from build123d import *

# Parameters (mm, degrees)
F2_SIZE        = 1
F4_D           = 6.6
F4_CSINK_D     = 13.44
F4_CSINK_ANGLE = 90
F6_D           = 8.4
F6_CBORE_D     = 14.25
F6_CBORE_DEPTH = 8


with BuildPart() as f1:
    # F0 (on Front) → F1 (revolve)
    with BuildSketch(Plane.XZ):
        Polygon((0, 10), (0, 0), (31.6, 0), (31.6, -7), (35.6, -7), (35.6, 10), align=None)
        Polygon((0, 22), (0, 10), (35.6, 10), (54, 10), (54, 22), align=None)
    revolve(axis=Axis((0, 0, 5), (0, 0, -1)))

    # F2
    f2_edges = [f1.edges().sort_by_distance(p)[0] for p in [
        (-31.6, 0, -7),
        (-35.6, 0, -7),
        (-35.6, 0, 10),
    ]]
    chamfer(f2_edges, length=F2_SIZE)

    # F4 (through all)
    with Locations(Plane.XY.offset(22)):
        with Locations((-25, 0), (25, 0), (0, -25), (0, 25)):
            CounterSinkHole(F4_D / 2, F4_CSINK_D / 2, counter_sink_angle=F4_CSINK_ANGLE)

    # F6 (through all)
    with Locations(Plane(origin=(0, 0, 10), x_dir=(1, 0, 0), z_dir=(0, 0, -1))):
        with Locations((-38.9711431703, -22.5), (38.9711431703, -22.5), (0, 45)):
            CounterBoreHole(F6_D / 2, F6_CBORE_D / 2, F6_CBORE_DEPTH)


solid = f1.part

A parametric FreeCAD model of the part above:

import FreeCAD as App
import Part
import Sketcher

V = App.Vector
Q = App.Units.Quantity


def edges_at(feature, points):
    """Names of the edges that pass closest to the given points."""
    edges = feature.Shape.Edges
    near = lambda p: min(range(len(edges)), key=lambda i: edges[i].distToShape(Part.Vertex(*p))[0])
    return sorted({f"Edge{near(p) + 1}" for p in points})


def add_polygon(sketch, points):
    """Adds a closed chain of lines whose ends are joined by coincident constraints."""
    first, n = sketch.GeometryCount, len(points)
    for a, b in zip(points, points[1:] + points[:1]):
        sketch.addGeometry(Part.LineSegment(App.Vector(*a, 0), App.Vector(*b, 0)), False)
    for i in range(n):
        sketch.addConstraint(Sketcher.Constraint("Coincident", first + i, 2, first + (i + 1) % n, 1))

doc = App.newDocument("Part")
params = doc.addObject("Spreadsheet::Sheet", "Params")
for row, (alias, value) in enumerate([
    ("sketch1_width", "4 mm"),
    ("sketch1_width2", "54 mm"),
    ("sketch1_height", "7 mm"),
    ("sketch1_height2", "17 mm"),
    ("sketch1_height3", "12 mm"),
    ("revolution_angle", "360 deg"),
    ("chamfer_size", "1 mm"),
    ("sketch2_diameter", "6.6 mm"),
    ("hole_diameter", "6.6 mm"),
    ("hole_csink_diameter", "13.44 mm"),
    ("sketch3_diameter", "8.4 mm"),
    ("hole2_diameter", "8.4 mm"),
    ("hole2_cbore_diameter", "14.25 mm"),
    ("hole2_cbore_depth", "8 mm"),
], start=1):
    params.set(f"A{row}", alias)
    params.set(f"B{row}", "=" + value)
    params.setAlias(f"B{row}", alias)

body = doc.addObject("PartDesign::Body", "Body")

# Sketch on XZ plane
sketch1 = body.newObject("Sketcher::SketchObject", "Sketch")
sketch1.AttachmentSupport = (doc.getObject("XZ_Plane"), [""])
sketch1.MapMode = "FlatFace"
add_polygon(sketch1, [(0, 0), (31.6, 0), (31.6, -7), (35.6, -7), (35.6, 10), (54, 10), (54, 22), (0, 22)])  # lines 0-7
sketch1.addConstraint([
    Sketcher.Constraint("Horizontal", 0),
    Sketcher.Constraint("Vertical", 1),
    Sketcher.Constraint("Horizontal", 2),
    Sketcher.Constraint("Vertical", 3),
    Sketcher.Constraint("Horizontal", 4),
    Sketcher.Constraint("Vertical", 5),
    Sketcher.Constraint("Horizontal", 6),
    Sketcher.Constraint("Vertical", 7),
    Sketcher.Constraint("Coincident", 7, 2, -1, 1),
    Sketcher.Constraint("DistanceX", 2, 1, 2, 2, Q("4 mm")),
    Sketcher.Constraint("DistanceX", 6, 2, 6, 1, Q("54 mm")),
    Sketcher.Constraint("DistanceY", 1, 2, 1, 1, Q("7 mm")),
    Sketcher.Constraint("DistanceY", 3, 1, 3, 2, Q("17 mm")),
    Sketcher.Constraint("DistanceY", 5, 1, 5, 2, Q("12 mm")),
    Sketcher.Constraint("DistanceX", 0, 1, 0, 2, Q("31.6 mm")),
])
sketch1.setExpression("Constraints[17]", "Params.sketch1_width")
sketch1.setExpression("Constraints[18]", "Params.sketch1_width2")
sketch1.setExpression("Constraints[19]", "Params.sketch1_height")
sketch1.setExpression("Constraints[20]", "Params.sketch1_height2")
sketch1.setExpression("Constraints[21]", "Params.sketch1_height3")
revolution = body.newObject("PartDesign::Revolution", "Revolution")
revolution.Profile = sketch1
revolution.ReferenceAxis = (sketch1, ["V_Axis"])
revolution.setExpression("Angle", "Params.revolution_angle")
doc.recompute()

chamfer = body.newObject("PartDesign::Chamfer", "Chamfer")
chamfer.Base = (revolution, edges_at(revolution, [(-31.6, 0, -7), (-35.6, 0, -7), (-35.6, 0, 10)]))
chamfer.setExpression("Size", "Params.chamfer_size")

# Sketch on XY plane
sketch2 = body.newObject("Sketcher::SketchObject", "Sketch001")
sketch2.AttachmentSupport = (doc.getObject("XY_Plane"), [""])
sketch2.MapMode = "FlatFace"
sketch2.AttachmentOffset = App.Placement(V(0, 0, 22), App.Rotation())
sketch2.addGeometry([
    Part.Circle(V(-25, 0, 0), V(0, 0, 1), 3.3),
    Part.Circle(V(25, 0, 0), V(0, 0, 1), 3.3),
    Part.Circle(V(0, -25, 0), V(0, 0, 1), 3.3),
    Part.Circle(V(0, 25, 0), V(0, 0, 1), 3.3),
], False)
sketch2.addConstraint([
    Sketcher.Constraint("Equal", 0, 1),
    Sketcher.Constraint("Equal", 1, 2),
    Sketcher.Constraint("Equal", 2, 3),
    Sketcher.Constraint("Symmetric", 0, 3, 1, 3, -1, 1),
    Sketcher.Constraint("Symmetric", 2, 3, 3, 3, -1, 1),
    Sketcher.Constraint("PointOnObject", 0, 3, -1),
    Sketcher.Constraint("PointOnObject", 2, 3, -2),
    Sketcher.Constraint("Diameter", 0, Q("6.6 mm")),
    Sketcher.Constraint("DistanceX", 0, 3, -1, 1, Q("25 mm")),
    Sketcher.Constraint("DistanceY", 2, 3, -1, 1, Q("25 mm")),
])
sketch2.setExpression("Constraints[7]", "Params.sketch2_diameter")
doc.recompute()
hole = body.newObject("PartDesign::Hole", "Hole")
hole.Profile = sketch2
hole.ThreadType = "None"
hole.setExpression("Diameter", "Params.hole_diameter")
hole.DepthType = "ThroughAll"
hole.HoleCutType = "Countersink"
hole.setExpression("HoleCutDiameter", "Params.hole_csink_diameter")
hole.HoleCutCountersinkAngle = 90

# Sketch on XY plane
sketch3 = body.newObject("Sketcher::SketchObject", "Sketch002")
sketch3.AttachmentSupport = (doc.getObject("XY_Plane"), [""])
sketch3.MapMode = "FlatFace"
sketch3.AttachmentOffset = App.Placement(V(0, 0, 10), App.Rotation())
sketch3.addGeometry([
    Part.Circle(V(-39, 22.5, 0), V(0, 0, 1), 4.2),
    Part.Circle(V(39, 22.5, 0), V(0, 0, 1), 4.2),
    Part.Circle(V(0, -45, 0), V(0, 0, 1), 4.2),
], False)
sketch3.addConstraint([
    Sketcher.Constraint("Equal", 0, 1),
    Sketcher.Constraint("Equal", 1, 2),
    Sketcher.Constraint("Symmetric", 0, 3, 1, 3, -2),
    Sketcher.Constraint("PointOnObject", 2, 3, -2),
    Sketcher.Constraint("Diameter", 0, Q("8.4 mm")),
    Sketcher.Constraint("DistanceY", 2, 3, -1, 1, Q("45 mm")),
    Sketcher.Constraint("DistanceY", -1, 1, 0, 3, Q("22.5 mm")),
    Sketcher.Constraint("DistanceX", 0, 3, -1, 1, Q("38.971143 mm")),
])
sketch3.setExpression("Constraints[4]", "Params.sketch3_diameter")
doc.recompute()
hole2 = body.newObject("PartDesign::Hole", "Hole001")
hole2.Profile = sketch3
hole2.ThreadType = "None"
hole2.setExpression("Diameter", "Params.hole2_diameter")
hole2.DepthType = "ThroughAll"
hole2.HoleCutType = "Counterbore"
hole2.setExpression("HoleCutDiameter", "Params.hole2_cbore_diameter")
hole2.setExpression("HoleCutDepth", "Params.hole2_cbore_depth")
hole2.Reversed = True

doc.recompute()
